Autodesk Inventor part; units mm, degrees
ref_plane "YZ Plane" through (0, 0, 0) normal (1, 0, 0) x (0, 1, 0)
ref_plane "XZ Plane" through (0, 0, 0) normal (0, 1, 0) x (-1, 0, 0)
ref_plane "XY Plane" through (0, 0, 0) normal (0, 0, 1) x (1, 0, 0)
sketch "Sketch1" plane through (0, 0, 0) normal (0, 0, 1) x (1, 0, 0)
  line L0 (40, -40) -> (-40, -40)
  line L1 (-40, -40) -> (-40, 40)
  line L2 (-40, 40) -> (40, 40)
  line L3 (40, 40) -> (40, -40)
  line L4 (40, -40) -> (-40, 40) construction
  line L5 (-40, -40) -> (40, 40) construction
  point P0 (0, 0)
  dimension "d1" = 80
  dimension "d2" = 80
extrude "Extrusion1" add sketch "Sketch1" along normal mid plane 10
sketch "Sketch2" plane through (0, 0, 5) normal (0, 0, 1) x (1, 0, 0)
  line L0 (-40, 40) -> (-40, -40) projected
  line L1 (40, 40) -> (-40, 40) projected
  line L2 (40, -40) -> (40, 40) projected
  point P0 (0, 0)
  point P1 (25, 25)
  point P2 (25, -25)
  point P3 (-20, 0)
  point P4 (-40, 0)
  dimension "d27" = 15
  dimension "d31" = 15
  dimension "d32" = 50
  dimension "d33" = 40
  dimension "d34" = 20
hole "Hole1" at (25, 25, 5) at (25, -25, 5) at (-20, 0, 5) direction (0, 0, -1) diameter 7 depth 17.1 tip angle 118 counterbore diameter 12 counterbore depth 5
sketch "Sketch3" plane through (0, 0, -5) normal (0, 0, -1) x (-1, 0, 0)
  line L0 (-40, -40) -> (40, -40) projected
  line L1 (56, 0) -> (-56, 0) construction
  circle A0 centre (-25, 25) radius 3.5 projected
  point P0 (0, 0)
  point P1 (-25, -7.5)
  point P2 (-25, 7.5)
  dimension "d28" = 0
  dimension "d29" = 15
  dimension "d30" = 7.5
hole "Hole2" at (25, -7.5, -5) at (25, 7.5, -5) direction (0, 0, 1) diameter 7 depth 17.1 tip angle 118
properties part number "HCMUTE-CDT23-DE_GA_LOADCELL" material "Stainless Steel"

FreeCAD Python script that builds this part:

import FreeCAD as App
import Part
import Sketcher

V = App.Vector
Q = App.Units.Quantity

doc = App.newDocument("Part")
params = doc.addObject("Spreadsheet::Sheet", "Params")
for row, (alias, value) in enumerate([
    ("sketch1_width", "80 mm"),
    ("pad1_length", "10 mm"),
    ("sketch2_diameter", "7 mm"),
    ("hole_diameter", "7 mm"),
    ("hole_depth", "17.1 mm"),
    ("hole_cbore_diameter", "12 mm"),
    ("hole_cbore_depth", "5 mm"),
    ("sketch3_diameter", "7 mm"),
    ("hole2_diameter", "7 mm"),
    ("hole2_depth", "17.1 mm"),
], start=1):
    params.set(f"A{row}", alias)
    params.set(f"B{row}", "=" + value)
    params.setAlias(f"B{row}", alias)

body = doc.addObject("PartDesign::Body", "Body")

sketch1 = body.newObject("Sketcher::SketchObject", "Sketch")
sketch1.AttachmentSupport = (doc.getObject("XY_Plane"), [""])
sketch1.MapMode = "FlatFace"
sketch1.addGeometry([
    Part.LineSegment(V(-40, -40, 0), V(40, -40, 0)),
    Part.LineSegment(V(40, -40, 0), V(40, 40, 0)),
    Part.LineSegment(V(40, 40, 0), V(-40, 40, 0)),
    Part.LineSegment(V(-40, 40, 0), V(-40, -40, 0)),
], False)
sketch1.addConstraint([
    Sketcher.Constraint("Coincident", 0, 2, 1, 1),
    Sketcher.Constraint("Coincident", 1, 2, 2, 1),
    Sketcher.Constraint("Coincident", 2, 2, 3, 1),
    Sketcher.Constraint("Coincident", 3, 2, 0, 1),
    Sketcher.Constraint("Horizontal", 0),
    Sketcher.Constraint("Vertical", 1),
    Sketcher.Constraint("Horizontal", 2),
    Sketcher.Constraint("Vertical", 3),
    Sketcher.Constraint("Symmetric", 0, 2, 2, 2, -1, 1),
    Sketcher.Constraint("Equal", 2, 1),
    Sketcher.Constraint("DistanceX", 0, 1, 0, 2, Q("80 mm")),
])
sketch1.setExpression("Constraints[10]", "Params.sketch1_width")
pad1 = body.newObject("PartDesign::Pad", "Pad")
pad1.Profile = sketch1
pad1.setExpression("Length", "Params.pad1_length")
pad1.Midplane = True

sketch2 = body.newObject("Sketcher::SketchObject", "Sketch001")
sketch2.AttachmentSupport = (doc.getObject("XY_Plane"), [""])
sketch2.MapMode = "FlatFace"
sketch2.AttachmentOffset = App.Placement(V(0, 0, 5), App.Rotation())
sketch2.addGeometry([
    Part.Circle(V(25, 25, 0), V(0, 0, 1), 3.5),
    Part.Circle(V(25, -25, 0), V(0, 0, 1), 3.5),
    Part.Circle(V(-20, 0, 0), V(0, 0, 1), 3.5),
], False)
sketch2.addConstraint([
    Sketcher.Constraint("Equal", 0, 1),
    Sketcher.Constraint("Equal", 1, 2),
    Sketcher.Constraint("Symmetric", 0, 3, 1, 3, -1),
    Sketcher.Constraint("PointOnObject", 2, 3, -1),
    Sketcher.Constraint("Diameter", 0, Q("7 mm")),
    Sketcher.Constraint("DistanceX", -1, 1, 0, 3, Q("25 mm")),
    Sketcher.Constraint("DistanceY", -1, 1, 0, 3, Q("25 mm")),
    Sketcher.Constraint("DistanceX", 2, 3, -1, 1, Q("20 mm")),
])
sketch2.setExpression("Constraints[4]", "Params.sketch2_diameter")
doc.recompute()
hole = body.newObject("PartDesign::Hole", "Hole")
hole.Profile = sketch2
hole.ThreadType = "None"
hole.setExpression("Diameter", "Params.hole_diameter")
hole.DepthType = "Dimension"
hole.setExpression("Depth", "Params.hole_depth")
hole.DrillPoint = "Angled"
hole.DrillPointAngle = 118
hole.HoleCutType = "Counterbore"
hole.setExpression("HoleCutDiameter", "Params.hole_cbore_diameter")
hole.setExpression("HoleCutDepth", "Params.hole_cbore_depth")

sketch3 = body.newObject("Sketcher::SketchObject", "Sketch002")
sketch3.AttachmentSupport = (doc.getObject("XY_Plane"), [""])
sketch3.MapMode = "FlatFace"
sketch3.AttachmentOffset = App.Placement(V(0, 0, -5), App.Rotation())
sketch3.addGeometry([
    Part.Circle(V(25, -7.5, 0), V(0, 0, 1), 3.5),
    Part.Circle(V(25, 7.5, 0), V(0, 0, 1), 3.5),
], False)
sketch3.addConstraint([
    Sketcher.Constraint("Equal", 0, 1),
    Sketcher.Constraint("Symmetric", 0, 3, 1, 3, -1),
    Sketcher.Constraint("Diameter", 0, Q("7 mm")),
    Sketcher.Constraint("DistanceX", -1, 1, 0, 3, Q("25 mm")),
    Sketcher.Constraint("DistanceY", 0, 3, 1, 3, Q("15 mm")),
])
sketch3.setExpression("Constraints[2]", "Params.sketch3_diameter")
doc.recompute()
hole2 = body.newObject("PartDesign::Hole", "Hole001")
hole2.Profile = sketch3
hole2.ThreadType = "None"
hole2.setExpression("Diameter", "Params.hole2_diameter")
hole2.DepthType = "Dimension"
hole2.setExpression("Depth", "Params.hole2_depth")
hole2.DrillPoint = "Angled"
hole2.DrillPointAngle = 118
hole2.Reversed = True

doc.recompute()
